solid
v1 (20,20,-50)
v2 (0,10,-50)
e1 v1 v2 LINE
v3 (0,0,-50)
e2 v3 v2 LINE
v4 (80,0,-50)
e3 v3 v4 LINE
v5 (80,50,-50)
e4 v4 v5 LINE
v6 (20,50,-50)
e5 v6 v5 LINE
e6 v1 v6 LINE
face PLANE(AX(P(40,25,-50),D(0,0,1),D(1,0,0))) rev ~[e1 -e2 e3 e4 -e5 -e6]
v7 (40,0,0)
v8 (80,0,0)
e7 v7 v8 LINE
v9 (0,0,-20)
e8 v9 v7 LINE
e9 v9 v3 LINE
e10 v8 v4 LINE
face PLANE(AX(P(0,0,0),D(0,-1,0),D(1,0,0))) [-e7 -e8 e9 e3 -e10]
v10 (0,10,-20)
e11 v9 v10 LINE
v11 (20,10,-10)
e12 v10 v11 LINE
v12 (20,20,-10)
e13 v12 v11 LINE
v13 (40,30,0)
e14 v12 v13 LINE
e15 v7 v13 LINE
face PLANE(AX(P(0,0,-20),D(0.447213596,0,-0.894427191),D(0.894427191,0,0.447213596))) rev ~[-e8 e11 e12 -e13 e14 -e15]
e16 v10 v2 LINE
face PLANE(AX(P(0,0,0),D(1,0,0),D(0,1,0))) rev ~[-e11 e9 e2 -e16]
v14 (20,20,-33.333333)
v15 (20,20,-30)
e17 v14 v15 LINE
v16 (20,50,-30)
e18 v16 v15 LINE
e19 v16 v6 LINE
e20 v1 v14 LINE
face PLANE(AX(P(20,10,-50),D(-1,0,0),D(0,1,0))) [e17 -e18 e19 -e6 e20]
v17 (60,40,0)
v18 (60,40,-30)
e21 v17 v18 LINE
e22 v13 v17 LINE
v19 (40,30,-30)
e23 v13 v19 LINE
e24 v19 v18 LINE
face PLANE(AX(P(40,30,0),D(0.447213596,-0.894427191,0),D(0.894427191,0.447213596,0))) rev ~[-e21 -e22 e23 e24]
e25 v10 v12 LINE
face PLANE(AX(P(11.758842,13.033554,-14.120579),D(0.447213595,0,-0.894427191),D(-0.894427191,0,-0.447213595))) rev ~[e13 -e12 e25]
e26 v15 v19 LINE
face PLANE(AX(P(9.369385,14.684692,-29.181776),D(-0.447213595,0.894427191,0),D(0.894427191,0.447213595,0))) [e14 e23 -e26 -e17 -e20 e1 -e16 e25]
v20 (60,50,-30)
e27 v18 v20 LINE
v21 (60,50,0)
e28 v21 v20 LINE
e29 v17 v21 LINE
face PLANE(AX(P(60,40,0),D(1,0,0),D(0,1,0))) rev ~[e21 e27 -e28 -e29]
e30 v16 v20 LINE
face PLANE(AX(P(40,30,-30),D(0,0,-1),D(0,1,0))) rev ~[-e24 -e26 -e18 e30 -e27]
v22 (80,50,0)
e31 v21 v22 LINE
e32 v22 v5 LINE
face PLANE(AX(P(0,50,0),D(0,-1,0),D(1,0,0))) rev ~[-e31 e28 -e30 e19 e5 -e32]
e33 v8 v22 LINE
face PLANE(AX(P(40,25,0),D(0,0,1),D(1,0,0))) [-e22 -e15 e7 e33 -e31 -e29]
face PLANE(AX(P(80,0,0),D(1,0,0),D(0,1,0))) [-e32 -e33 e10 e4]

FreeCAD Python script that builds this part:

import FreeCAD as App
import Part
import Sketcher
Q = App.Units.Quantity

doc = App.newDocument("Part")
body = doc.addObject("PartDesign::Body", "Body")

# Sketch on XY plane
sketch1 = doc.addObject("Sketcher::SketchObject", "Sketch")
body.addObject(sketch1)
sketch1.AttachmentSupport = (doc.XY_Plane, [""])
sketch1.MapMode = "FlatFace"
sketch1.addGeometry([
    Part.LineSegment(App.Vector(0, 50, 0), App.Vector(0, 0, 0)),
    Part.LineSegment(App.Vector(0, 0, 0), App.Vector(80, 0, 0)),
    Part.LineSegment(App.Vector(80, 0, 0), App.Vector(80, 50, 0)),
    Part.LineSegment(App.Vector(80, 50, 0), App.Vector(0, 50, 0)),
], False)
sketch1.addConstraint([
    Sketcher.Constraint("Coincident", 0, 2, 1, 1),
    Sketcher.Constraint("Coincident", 1, 2, 2, 1),
    Sketcher.Constraint("Coincident", 2, 2, 3, 1),
    Sketcher.Constraint("Coincident", 3, 2, 0, 1),
    Sketcher.Constraint("Vertical", 0),
    Sketcher.Constraint("Horizontal", 1),
    Sketcher.Constraint("Vertical", 2),
    Sketcher.Constraint("Horizontal", 3),
    Sketcher.Constraint("Coincident", 0, 2, -1, 1),
    Sketcher.Constraint("DistanceX", 1, 1, 1, 2, Q("80 mm")),
    Sketcher.Constraint("DistanceY", 0, 2, 0, 1, Q("50 mm")),
])
pad1 = doc.addObject("PartDesign::Pad", "Pad")
body.addObject(pad1)
pad1.Profile = sketch1
pad1.Length = 50
pad1.Reversed = True

# Sketch on XY plane
sketch2 = doc.addObject("Sketcher::SketchObject", "Sketch001")
body.addObject(sketch2)
sketch2.AttachmentSupport = (doc.XY_Plane, [""])
sketch2.MapMode = "FlatFace"
sketch2.addGeometry([
    Part.LineSegment(App.Vector(60, 40, 0), App.Vector(60, 50, 0)),
    Part.LineSegment(App.Vector(60, 50, 0), App.Vector(40, 50, 0)),
    Part.LineSegment(App.Vector(40, 50, 0), App.Vector(40, 30, 0)),
    Part.LineSegment(App.Vector(40, 30, 0), App.Vector(60, 40, 0)),
], False)
sketch2.addConstraint([
    Sketcher.Constraint("Coincident", 0, 2, 1, 1),
    Sketcher.Constraint("Coincident", 1, 2, 2, 1),
    Sketcher.Constraint("Coincident", 2, 2, 3, 1),
    Sketcher.Constraint("Coincident", 3, 2, 0, 1),
    Sketcher.Constraint("Vertical", 0),
    Sketcher.Constraint("Horizontal", 1),
    Sketcher.Constraint("Vertical", 2),
    Sketcher.Constraint("Equal", 1, 2),
    Sketcher.Constraint("DistanceX", 1, 2, 1, 1, Q("20 mm")),
    Sketcher.Constraint("DistanceY", 0, 1, 0, 2, Q("10 mm")),
    Sketcher.Constraint("DistanceX", -1, 1, 0, 2, Q("60 mm")),
    Sketcher.Constraint("DistanceY", -1, 1, 0, 2, Q("50 mm")),
])
pocket1 = doc.addObject("PartDesign::Pocket", "Pocket")
body.addObject(pocket1)
pocket1.Profile = sketch2
pocket1.Length = 30

# Sketch on XY plane
sketch3 = doc.addObject("Sketcher::SketchObject", "Sketch002")
body.addObject(sketch3)
sketch3.AttachmentSupport = (doc.XY_Plane, [""])
sketch3.MapMode = "FlatFace"
sketch3.AttachmentOffset = App.Placement(App.Vector(0, 0, -50), App.Rotation())
sketch3.addGeometry([
    Part.LineSegment(App.Vector(20, 50, 0), App.Vector(20, 10, 0)),
    Part.LineSegment(App.Vector(20, 10, 0), App.Vector(0, 10, 0)),
    Part.LineSegment(App.Vector(0, 10, 0), App.Vector(0, 50, 0)),
    Part.LineSegment(App.Vector(0, 50, 0), App.Vector(20, 50, 0)),
], False)
sketch3.addConstraint([
    Sketcher.Constraint("Coincident", 0, 2, 1, 1),
    Sketcher.Constraint("Coincident", 1, 2, 2, 1),
    Sketcher.Constraint("Coincident", 2, 2, 3, 1),
    Sketcher.Constraint("Coincident", 3, 2, 0, 1),
    Sketcher.Constraint("Vertical", 0),
    Sketcher.Constraint("Horizontal", 1),
    Sketcher.Constraint("Vertical", 2),
    Sketcher.Constraint("Horizontal", 3),
    Sketcher.Constraint("PointOnObject", 1, 2, -2),
    Sketcher.Constraint("DistanceX", 1, 2, 1, 1, Q("20 mm")),
    Sketcher.Constraint("DistanceY", 0, 2, 0, 1, Q("40 mm")),
    Sketcher.Constraint("DistanceY", -1, 1, 0, 2, Q("10 mm")),
])
pocket2 = doc.addObject("PartDesign::Pocket", "Pocket001")
body.addObject(pocket2)
pocket2.Profile = sketch3
pocket2.Length = 103
pocket2.Reversed = True

# Sketch on XZ plane
sketch4 = doc.addObject("Sketcher::SketchObject", "Sketch003")
body.addObject(sketch4)
sketch4.AttachmentSupport = (doc.XZ_Plane, [""])
sketch4.MapMode = "FlatFace"
sketch4.addGeometry([
    Part.LineSegment(App.Vector(0, 0, 0), App.Vector(0, -20, 0)),
    Part.LineSegment(App.Vector(0, -20, 0), App.Vector(40, 0, 0)),
    Part.LineSegment(App.Vector(40, 0, 0), App.Vector(0, 0, 0)),
], False)
sketch4.addConstraint([
    Sketcher.Constraint("Coincident", 0, 2, 1, 1),
    Sketcher.Constraint("Coincident", 1, 2, 2, 1),
    Sketcher.Constraint("Coincident", 2, 2, 0, 1),
    Sketcher.Constraint("Vertical", 0),
    Sketcher.Constraint("Horizontal", 2),
    Sketcher.Constraint("Coincident", 2, 2, -1, 1),
    Sketcher.Constraint("DistanceX", 2, 2, 2, 1, Q("40 mm")),
    Sketcher.Constraint("DistanceY", 0, 2, 0, 1, Q("20 mm")),
])
pocket3 = doc.addObject("PartDesign::Pocket", "Pocket002")
body.addObject(pocket3)
pocket3.Profile = sketch4
pocket3.Length = 103

# Sketch on YZ plane
sketch5 = doc.addObject("Sketcher::SketchObject", "Sketch004")
body.addObject(sketch5)
sketch5.AttachmentSupport = (doc.YZ_Plane, [""])
sketch5.MapMode = "FlatFace"
sketch5.AttachmentOffset = App.Placement(App.Vector(0, 0, 40), App.Rotation())
sketch5.addGeometry([
    Part.LineSegment(App.Vector(50, 0, 0), App.Vector(30, 0, 0)),
    Part.LineSegment(App.Vector(30, 0, 0), App.Vector(30, -30, 0)),
    Part.LineSegment(App.Vector(30, -30, 0), App.Vector(50, -30, 0)),
    Part.LineSegment(App.Vector(50, -30, 0), App.Vector(50, 0, 0)),
], False)
sketch5.addConstraint([
    Sketcher.Constraint("Coincident", 0, 2, 1, 1),
    Sketcher.Constraint("Coincident", 1, 2, 2, 1),
    Sketcher.Constraint("Coincident", 2, 2, 3, 1),
    Sketcher.Constraint("Coincident", 3, 2, 0, 1),
    Sketcher.Constraint("Horizontal", 0),
    Sketcher.Constraint("Vertical", 1),
    Sketcher.Constraint("Horizontal", 2),
    Sketcher.Constraint("Vertical", 3),
    Sketcher.Constraint("PointOnObject", 0, 2, -1),
    Sketcher.Constraint("DistanceX", 0, 2, 0, 1, Q("20 mm")),
    Sketcher.Constraint("DistanceY", 1, 2, 1, 1, Q("30 mm")),
    Sketcher.Constraint("DistanceX", -1, 1, 0, 2, Q("30 mm")),
])
pocket4 = doc.addObject("PartDesign::Pocket", "Pocket003")
body.addObject(pocket4)
pocket4.Profile = sketch5
pocket4.Length = 103

# Sketch on an angled plane
sketch6 = doc.addObject("Sketcher::SketchObject", "Sketch005")
body.addObject(sketch6)
sketch6.Placement = App.Placement(App.Vector(-4, 8, 0), App.Rotation(App.Vector(-0.894427191, -0.447213595, 0), App.Vector(0, 0, -1), App.Vector(0.447213595, -0.894427191, 0), "ZXY"))
sketch6.addGeometry([
    Part.LineSegment(App.Vector(-4, 35, 0), App.Vector(-72, 30, 0)),
    Part.LineSegment(App.Vector(-72, 30, 0), App.Vector(-72, 0, 0)),
    Part.LineSegment(App.Vector(-72, 0, 0), App.Vector(0, 0, 0)),
    Part.LineSegment(App.Vector(0, 0, 0), App.Vector(-4, 35, 0)),
], False)
sketch6.addConstraint([
    Sketcher.Constraint("Coincident", 0, 2, 1, 1),
    Sketcher.Constraint("Coincident", 1, 2, 2, 1),
    Sketcher.Constraint("Coincident", 2, 2, 3, 1),
    Sketcher.Constraint("Coincident", 3, 2, 0, 1),
    Sketcher.Constraint("Vertical", 1),
    Sketcher.Constraint("Horizontal", 2),
    Sketcher.Constraint("Coincident", 2, 2, -1, 1),
    Sketcher.Constraint("DistanceY", 1, 2, 1, 1, Q("30 mm")),
    Sketcher.Constraint("DistanceY", -1, 1, 3, 2, Q("35 mm")),
    Sketcher.Constraint("Distance", 0, Q("67.26812 mm")),
    Sketcher.Constraint("DistanceX", 2, 1, 2, 2, Q("71.554175 mm")),
])
pocket5 = doc.addObject("PartDesign::Pocket", "Pocket004")
body.addObject(pocket5)
pocket5.Profile = sketch6
pocket5.Length = 103

# Sketch on an angled plane
sketch7 = doc.addObject("Sketcher::SketchObject", "Sketch006")
body.addObject(sketch7)
sketch7.Placement = App.Placement(App.Vector(-4, 8, 0), App.Rotation(App.Vector(-0.894427191, -0.447213595, 0), App.Vector(0, 0, -1), App.Vector(0.447213595, -0.894427191, 0), "ZXY"))
sketch7.addGeometry([
    Part.LineSegment(App.Vector(-4, 20, 0), App.Vector(-4, 50, 0)),
    Part.LineSegment(App.Vector(-4, 50, 0), App.Vector(-27, 50, 0)),
    Part.LineSegment(App.Vector(-27, 50, 0), App.Vector(-27, 10, 0)),
    Part.LineSegment(App.Vector(-27, 10, 0), App.Vector(-4, 20, 0)),
], False)
sketch7.addConstraint([
    Sketcher.Constraint("Coincident", 0, 2, 1, 1),
    Sketcher.Constraint("Coincident", 1, 2, 2, 1),
    Sketcher.Constraint("Coincident", 2, 2, 3, 1),
    Sketcher.Constraint("Coincident", 3, 2, 0, 1),
    Sketcher.Constraint("Vertical", 0),
    Sketcher.Constraint("Horizontal", 1),
    Sketcher.Constraint("Vertical", 2),
    Sketcher.Constraint("DistanceY", 0, 1, 0, 2, Q("30 mm")),
    Sketcher.Constraint("DistanceY", 2, 2, 2, 1, Q("40 mm")),
    Sketcher.Constraint("DistanceY", -1, 1, 0, 2, Q("50 mm")),
    Sketcher.Constraint("DistanceX", 1, 2, 1, 1, Q("22.36068 mm")),
    Sketcher.Constraint("DistanceX", 0, 2, -1, 1, Q("4.472136 mm")),
])
pad2 = doc.addObject("PartDesign::Pad", "Pad001")
body.addObject(pad2)
pad2.Profile = sketch7
pad2.Length = 15

# Sketch on an angled plane
sketch8 = doc.addObject("Sketcher::SketchObject", "Sketch007")
body.addObject(sketch8)
sketch8.Placement = App.Placement(App.Vector(8, 0, -16), App.Rotation(App.Vector(0.894427191, 0, 0.447213595), App.Vector(0, 1, 0), App.Vector(-0.447213595, 0, 0.894427191), "ZXY"))
sketch8.addGeometry([
    Part.LineSegment(App.Vector(-9, 10, 0), App.Vector(13, 10, 0)),
    Part.LineSegment(App.Vector(13, 10, 0), App.Vector(13, 20, 0)),
    Part.LineSegment(App.Vector(13, 20, 0), App.Vector(-9, 10, 0)),
], False)
sketch8.addConstraint([
    Sketcher.Constraint("Coincident", 0, 2, 1, 1),
    Sketcher.Constraint("Coincident", 1, 2, 2, 1),
    Sketcher.Constraint("Coincident", 2, 2, 0, 1),
    Sketcher.Constraint("Horizontal", 0),
    Sketcher.Constraint("Vertical", 1),
    Sketcher.Constraint("DistanceY", 1, 1, 1, 2, Q("10 mm")),
    Sketcher.Constraint("DistanceY", -1, 1, 0, 2, Q("10 mm")),
    Sketcher.Constraint("DistanceX", 0, 1, 0, 2, Q("22.36068 mm")),
    Sketcher.Constraint("DistanceX", 2, 2, -1, 1, Q("8.944272 mm")),
])
pad3 = doc.addObject("PartDesign::Pad", "Pad002")
body.addObject(pad3)
pad3.Profile = sketch8
pad3.Length = 15
pad3.Reversed = True

# Sketch on XZ plane
sketch9 = doc.addObject("Sketcher::SketchObject", "Sketch008")
body.addObject(sketch9)
sketch9.AttachmentSupport = (doc.XZ_Plane, [""])
sketch9.MapMode = "FlatFace"
sketch9.addGeometry([
    Part.LineSegment(App.Vector(80, -50, 0), App.Vector(80, 0, 0)),
    Part.LineSegment(App.Vector(80, 0, 0), App.Vector(-4, 0, 0)),
    Part.LineSegment(App.Vector(-4, 0, 0), App.Vector(-4, -50, 0)),
    Part.LineSegment(App.Vector(-4, -50, 0), App.Vector(80, -50, 0)),
], False)
sketch9.addConstraint([
    Sketcher.Constraint("Coincident", 0, 2, 1, 1),
    Sketcher.Constraint("Coincident", 1, 2, 2, 1),
    Sketcher.Constraint("Coincident", 2, 2, 3, 1),
    Sketcher.Constraint("Coincident", 3, 2, 0, 1),
    Sketcher.Constraint("Vertical", 0),
    Sketcher.Constraint("Horizontal", 1),
    Sketcher.Constraint("Vertical", 2),
    Sketcher.Constraint("Horizontal", 3),
    Sketcher.Constraint("PointOnObject", 0, 2, -1),
    Sketcher.Constraint("DistanceY", 0, 1, 0, 2, Q("50 mm")),
    Sketcher.Constraint("DistanceX", -1, 1, 0, 2, Q("80 mm")),
    Sketcher.Constraint("DistanceX", 1, 2, 1, 1, Q("83.848824 mm")),
])
pocket6 = doc.addObject("PartDesign::Pocket", "Pocket005")
body.addObject(pocket6)
pocket6.Profile = sketch9
pocket6.Length = 15
pocket6.Reversed = True

# Sketch on XZ plane
sketch10 = doc.addObject("Sketcher::SketchObject", "Sketch009")
body.addObject(sketch10)
sketch10.AttachmentSupport = (doc.XZ_Plane, [""])
sketch10.MapMode = "FlatFace"
sketch10.AttachmentOffset = App.Placement(App.Vector(0, 0, -50), App.Rotation())
sketch10.addGeometry([
    Part.LineSegment(App.Vector(63, -30, 0), App.Vector(63, -36, 0)),
    Part.LineSegment(App.Vector(63, -36, 0), App.Vector(20, -36, 0)),
    Part.LineSegment(App.Vector(20, -36, 0), App.Vector(20, -30, 0)),
    Part.LineSegment(App.Vector(20, -30, 0), App.Vector(63, -30, 0)),
], False)
sketch10.addConstraint([
    Sketcher.Constraint("Coincident", 0, 2, 1, 1),
    Sketcher.Constraint("Coincident", 1, 2, 2, 1),
    Sketcher.Constraint("Coincident", 2, 2, 3, 1),
    Sketcher.Constraint("Coincident", 3, 2, 0, 1),
    Sketcher.Constraint("Vertical", 0),
    Sketcher.Constraint("Horizontal", 1),
    Sketcher.Constraint("Vertical", 2),
    Sketcher.Constraint("Horizontal", 3),
    Sketcher.Constraint("DistanceX", -1, 1, 1, 2, Q("20 mm")),
    Sketcher.Constraint("DistanceY", 2, 2, -1, 1, Q("30 mm")),
    Sketcher.Constraint("DistanceX", 1, 2, 1, 1, Q("42.907539 mm")),
    Sketcher.Constraint("DistanceY", 0, 2, 0, 1, Q("5.56714 mm")),
])
pad4 = doc.addObject("PartDesign::Pad", "Pad003")
body.addObject(pad4)
pad4.Profile = sketch10
pad4.Length = 37

doc.recompute()
